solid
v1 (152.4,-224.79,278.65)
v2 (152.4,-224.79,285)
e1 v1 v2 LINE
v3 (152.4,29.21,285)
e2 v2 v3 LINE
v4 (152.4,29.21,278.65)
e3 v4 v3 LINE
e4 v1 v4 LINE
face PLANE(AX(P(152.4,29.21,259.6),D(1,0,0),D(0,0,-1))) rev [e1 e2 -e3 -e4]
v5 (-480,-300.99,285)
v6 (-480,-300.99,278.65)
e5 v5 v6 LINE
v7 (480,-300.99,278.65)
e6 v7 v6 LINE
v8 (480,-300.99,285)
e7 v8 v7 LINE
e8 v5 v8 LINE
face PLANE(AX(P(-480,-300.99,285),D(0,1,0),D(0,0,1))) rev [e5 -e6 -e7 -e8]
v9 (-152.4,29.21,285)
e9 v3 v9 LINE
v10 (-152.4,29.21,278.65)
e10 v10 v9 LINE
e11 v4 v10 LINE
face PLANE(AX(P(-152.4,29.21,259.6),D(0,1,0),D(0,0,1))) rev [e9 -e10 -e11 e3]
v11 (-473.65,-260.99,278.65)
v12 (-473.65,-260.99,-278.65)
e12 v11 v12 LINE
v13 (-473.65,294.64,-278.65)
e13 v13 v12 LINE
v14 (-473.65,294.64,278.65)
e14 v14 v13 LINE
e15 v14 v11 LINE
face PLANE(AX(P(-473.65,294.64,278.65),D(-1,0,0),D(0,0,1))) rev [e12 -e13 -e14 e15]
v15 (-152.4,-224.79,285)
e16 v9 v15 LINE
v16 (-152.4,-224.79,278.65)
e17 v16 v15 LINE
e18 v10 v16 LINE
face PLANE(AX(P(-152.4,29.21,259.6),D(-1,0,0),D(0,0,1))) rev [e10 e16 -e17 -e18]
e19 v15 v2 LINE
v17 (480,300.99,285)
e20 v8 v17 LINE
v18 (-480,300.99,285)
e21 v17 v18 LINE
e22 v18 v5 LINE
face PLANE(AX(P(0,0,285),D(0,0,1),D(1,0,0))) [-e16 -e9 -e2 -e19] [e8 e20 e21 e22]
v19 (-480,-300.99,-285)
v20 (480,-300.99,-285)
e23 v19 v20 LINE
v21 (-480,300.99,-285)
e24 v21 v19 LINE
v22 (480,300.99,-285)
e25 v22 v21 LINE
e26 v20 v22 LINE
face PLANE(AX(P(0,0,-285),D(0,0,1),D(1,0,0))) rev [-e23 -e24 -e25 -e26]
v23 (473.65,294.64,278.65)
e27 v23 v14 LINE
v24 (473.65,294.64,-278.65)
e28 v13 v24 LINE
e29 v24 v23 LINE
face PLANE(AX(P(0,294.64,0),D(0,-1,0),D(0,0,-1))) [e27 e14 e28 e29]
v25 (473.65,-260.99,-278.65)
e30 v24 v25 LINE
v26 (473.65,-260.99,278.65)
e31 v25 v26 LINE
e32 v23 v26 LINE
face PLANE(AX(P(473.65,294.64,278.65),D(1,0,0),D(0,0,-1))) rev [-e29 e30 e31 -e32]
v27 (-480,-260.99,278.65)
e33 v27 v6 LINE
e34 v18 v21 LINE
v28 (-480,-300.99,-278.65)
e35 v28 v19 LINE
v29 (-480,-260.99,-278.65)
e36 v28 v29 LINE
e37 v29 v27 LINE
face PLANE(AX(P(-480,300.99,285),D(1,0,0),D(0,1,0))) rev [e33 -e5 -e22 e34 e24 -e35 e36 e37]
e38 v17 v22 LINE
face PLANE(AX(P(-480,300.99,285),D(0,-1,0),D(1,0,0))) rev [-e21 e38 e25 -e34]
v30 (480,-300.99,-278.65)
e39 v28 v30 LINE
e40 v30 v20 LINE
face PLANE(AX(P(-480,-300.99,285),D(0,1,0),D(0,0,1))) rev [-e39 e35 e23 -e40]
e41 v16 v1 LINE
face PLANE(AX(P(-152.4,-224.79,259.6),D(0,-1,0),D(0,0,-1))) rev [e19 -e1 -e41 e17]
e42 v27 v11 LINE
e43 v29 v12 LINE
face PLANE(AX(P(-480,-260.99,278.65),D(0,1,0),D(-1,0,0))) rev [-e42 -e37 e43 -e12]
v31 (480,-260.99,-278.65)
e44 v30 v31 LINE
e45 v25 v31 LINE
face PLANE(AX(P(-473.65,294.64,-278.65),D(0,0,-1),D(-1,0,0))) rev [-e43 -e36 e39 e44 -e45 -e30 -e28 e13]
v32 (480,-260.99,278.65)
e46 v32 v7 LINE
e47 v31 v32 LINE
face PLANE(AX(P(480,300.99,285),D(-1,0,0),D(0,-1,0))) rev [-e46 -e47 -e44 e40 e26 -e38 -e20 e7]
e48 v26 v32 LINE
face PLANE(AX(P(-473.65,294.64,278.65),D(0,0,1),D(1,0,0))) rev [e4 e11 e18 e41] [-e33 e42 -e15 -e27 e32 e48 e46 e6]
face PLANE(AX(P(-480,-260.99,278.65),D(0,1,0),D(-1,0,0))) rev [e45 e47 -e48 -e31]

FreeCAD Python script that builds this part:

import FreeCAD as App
import Part
import Sketcher

V = App.Vector


def add_polygon(sketch, points):
    """Adds a closed chain of lines whose ends are joined by coincident constraints."""
    first, n = sketch.GeometryCount, len(points)
    for a, b in zip(points, points[1:] + points[:1]):
        sketch.addGeometry(Part.LineSegment(App.Vector(*a, 0), App.Vector(*b, 0)), False)
    for i in range(n):
        sketch.addConstraint(Sketcher.Constraint("Coincident", first + i, 2, first + (i + 1) % n, 1))

doc = App.newDocument("Part")
params = doc.addObject("Spreadsheet::Sheet", "Params")
for row, (alias, value) in enumerate([
    ("sketch1_width", "960 mm"),
    ("sketch1_height", "601.98 mm"),
    ("pad1_length", "570 mm"),
    ("sketch2_width", "947.3 mm"),
    ("sketch2_height", "557.3 mm"),
    ("pocket1_length", "595.63 mm"),
    ("sketch3_width", "40 mm"),
    ("sketch3_height", "557.3 mm"),
    ("sketch4_height", "254 mm"),
    ("sketch4_width", "304.8 mm"),
    ("pocket3_length", "25.4 mm"),
], start=1):
    params.set(f"A{row}", alias)
    params.set(f"B{row}", "=" + value)
    params.setAlias(f"B{row}", alias)

body = doc.addObject("PartDesign::Body", "Body")

sketch1 = body.newObject("Sketcher::SketchObject", "Sketch")
sketch1.AttachmentSupport = (doc.getObject("XY_Plane"), [""])
sketch1.MapMode = "FlatFace"
add_polygon(sketch1, [(-480, 301), (-480, -301), (480, -301), (480, 301)])
sketch1.addConstraint([
    Sketcher.Constraint("Vertical", 0),
    Sketcher.Constraint("Horizontal", 1),
    Sketcher.Constraint("Vertical", 2),
    Sketcher.Constraint("Horizontal", 3),
    Sketcher.Constraint("Symmetric", 0, 2, 2, 2, -1, 1),
    Sketcher.Constraint("DistanceX", 1, 1, 1, 2, 960.0),
    Sketcher.Constraint("DistanceY", 0, 2, 0, 1, 601.98),
])
sketch1.setExpression("Constraints[9]", "Params.sketch1_width")
sketch1.setExpression("Constraints[10]", "Params.sketch1_height")
pad1 = body.newObject("PartDesign::Pad", "Pad")
pad1.Profile = sketch1
pad1.setExpression("Length", "Params.pad1_length")
pad1.Midplane = True

sketch2 = body.newObject("Sketcher::SketchObject", "Sketch001")
sketch2.AttachmentSupport = (doc.getObject("XZ_Plane"), [""])
sketch2.MapMode = "FlatFace"
sketch2.AttachmentOffset = App.Placement(V(0, 0, 300.99), App.Rotation())
add_polygon(sketch2, [(-474, 279), (-474, -279), (474, -279), (474, 279)])
sketch2.addConstraint([
    Sketcher.Constraint("Vertical", 0),
    Sketcher.Constraint("Horizontal", 1),
    Sketcher.Constraint("Vertical", 2),
    Sketcher.Constraint("Horizontal", 3),
    Sketcher.Constraint("Symmetric", 0, 2, 2, 2, -1, 1),
    Sketcher.Constraint("DistanceX", 1, 1, 1, 2, 947.3),
    Sketcher.Constraint("DistanceY", 0, 2, 0, 1, 557.3),
])
sketch2.setExpression("Constraints[9]", "Params.sketch2_width")
sketch2.setExpression("Constraints[10]", "Params.sketch2_height")
pocket1 = body.newObject("PartDesign::Pocket", "Pocket")
pocket1.Profile = sketch2
pocket1.setExpression("Length", "Params.pocket1_length")

sketch3 = body.newObject("Sketcher::SketchObject", "Sketch002")
sketch3.AttachmentSupport = (doc.getObject("YZ_Plane"), [""])
sketch3.MapMode = "FlatFace"
sketch3.AttachmentOffset = App.Placement(V(0, 0, 480), App.Rotation())
add_polygon(sketch3, [(-261, 279), (-301, 279), (-301, -279), (-261, -279)])
sketch3.addConstraint([
    Sketcher.Constraint("Horizontal", 0),
    Sketcher.Constraint("Vertical", 1),
    Sketcher.Constraint("Horizontal", 2),
    Sketcher.Constraint("Vertical", 3),
    Sketcher.Constraint("DistanceX", 0, 2, 0, 1, 40.0),
    Sketcher.Constraint("DistanceY", 1, 2, 1, 1, 557.3),
    Sketcher.Constraint("DistanceX", 0, 2, -1, 1, 300.99),
    Sketcher.Constraint("DistanceY", -1, 1, 0, 2, 278.65),
])
sketch3.setExpression("Constraints[8]", "Params.sketch3_width")
sketch3.setExpression("Constraints[9]", "Params.sketch3_height")
pocket2 = body.newObject("PartDesign::Pocket", "Pocket001")
pocket2.Profile = sketch3
pocket2.Type = "ThroughAll"

sketch4 = body.newObject("Sketcher::SketchObject", "Sketch003")
sketch4.AttachmentSupport = (doc.getObject("XY_Plane"), [""])
sketch4.MapMode = "FlatFace"
sketch4.AttachmentOffset = App.Placement(V(0, 0, 285), App.Rotation())
add_polygon(sketch4, [(-152, 29), (-152, -225), (152, -225), (152, 29)])
sketch4.addConstraint([
    Sketcher.Constraint("Vertical", 0),
    Sketcher.Constraint("Horizontal", 1),
    Sketcher.Constraint("Vertical", 2),
    Sketcher.Constraint("Horizontal", 3),
    Sketcher.Constraint("DistanceY", 0, 2, 0, 1, 254.0),
    Sketcher.Constraint("DistanceX", 1, 1, 1, 2, 304.8),
    Sketcher.Constraint("DistanceX", 0, 2, -1, 1, 152.4),
    Sketcher.Constraint("DistanceY", 0, 2, -1, 1, 224.79),
])
sketch4.setExpression("Constraints[8]", "Params.sketch4_height")
sketch4.setExpression("Constraints[9]", "Params.sketch4_width")
pocket3 = body.newObject("PartDesign::Pocket", "Pocket002")
pocket3.Profile = sketch4
pocket3.setExpression("Length", "Params.pocket3_length")

doc.recompute()
